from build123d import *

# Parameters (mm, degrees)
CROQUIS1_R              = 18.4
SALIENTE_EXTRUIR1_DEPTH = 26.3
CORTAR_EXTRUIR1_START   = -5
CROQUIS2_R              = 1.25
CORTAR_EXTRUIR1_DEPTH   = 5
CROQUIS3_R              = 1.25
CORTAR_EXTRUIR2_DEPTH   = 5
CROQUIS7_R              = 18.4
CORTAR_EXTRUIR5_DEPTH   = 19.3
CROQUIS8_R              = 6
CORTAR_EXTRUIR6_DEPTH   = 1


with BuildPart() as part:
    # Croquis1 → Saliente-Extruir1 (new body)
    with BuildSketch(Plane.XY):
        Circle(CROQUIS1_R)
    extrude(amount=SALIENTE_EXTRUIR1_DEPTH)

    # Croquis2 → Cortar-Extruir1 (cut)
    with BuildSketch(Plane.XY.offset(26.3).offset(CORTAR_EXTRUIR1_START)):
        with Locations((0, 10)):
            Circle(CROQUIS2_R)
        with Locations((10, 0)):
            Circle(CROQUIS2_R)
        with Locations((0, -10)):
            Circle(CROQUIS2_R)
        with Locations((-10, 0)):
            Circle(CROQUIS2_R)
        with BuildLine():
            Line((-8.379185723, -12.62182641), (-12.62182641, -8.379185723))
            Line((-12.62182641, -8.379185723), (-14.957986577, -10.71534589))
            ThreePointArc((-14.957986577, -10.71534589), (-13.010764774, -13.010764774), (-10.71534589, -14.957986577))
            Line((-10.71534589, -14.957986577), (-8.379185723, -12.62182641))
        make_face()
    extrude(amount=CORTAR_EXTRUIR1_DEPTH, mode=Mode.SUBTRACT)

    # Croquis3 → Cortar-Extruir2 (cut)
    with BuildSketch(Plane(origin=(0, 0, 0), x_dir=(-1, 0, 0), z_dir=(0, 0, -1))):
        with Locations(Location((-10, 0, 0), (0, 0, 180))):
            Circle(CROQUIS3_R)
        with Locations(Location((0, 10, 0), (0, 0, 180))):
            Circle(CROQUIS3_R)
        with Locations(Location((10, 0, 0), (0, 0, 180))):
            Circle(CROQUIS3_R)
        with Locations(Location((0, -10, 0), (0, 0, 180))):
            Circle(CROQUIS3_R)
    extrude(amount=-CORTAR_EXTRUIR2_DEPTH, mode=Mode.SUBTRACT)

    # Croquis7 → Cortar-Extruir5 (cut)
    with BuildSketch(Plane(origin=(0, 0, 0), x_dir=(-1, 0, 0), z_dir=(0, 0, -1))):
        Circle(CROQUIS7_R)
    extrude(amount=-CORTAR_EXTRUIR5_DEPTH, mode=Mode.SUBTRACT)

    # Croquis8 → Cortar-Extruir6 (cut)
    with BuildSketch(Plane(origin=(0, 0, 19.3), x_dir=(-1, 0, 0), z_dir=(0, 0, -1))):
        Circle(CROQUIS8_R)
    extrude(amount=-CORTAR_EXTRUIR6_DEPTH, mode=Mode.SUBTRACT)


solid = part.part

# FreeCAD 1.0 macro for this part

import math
import FreeCAD as App
import Part
import Sketcher
Q = App.Units.Quantity

doc = App.newDocument("Part")
body = doc.addObject("PartDesign::Body", "Body")

# Sketch on XY plane
sketch1 = body.newObject("Sketcher::SketchObject", "Sketch")
sketch1.AttachmentSupport = (doc.getObject("XY_Plane"), [""])
sketch1.MapMode = "FlatFace"
sketch1.addGeometry(Part.Circle(App.Vector(0, 0, 0), App.Vector(0, 0, 1), 18), False)
sketch1.addConstraint([
    Sketcher.Constraint("Coincident", 0, 3, -1, 1),
    Sketcher.Constraint("Diameter", 0, 36.8),
])
pad1 = body.newObject("PartDesign::Pad", "Pad")
pad1.Profile = sketch1
pad1.Length = 26.3

# Sketch on XY plane
sketch2 = body.newObject("Sketcher::SketchObject", "Sketch001")
sketch2.AttachmentSupport = (doc.getObject("XY_Plane"), [""])
sketch2.MapMode = "FlatFace"
sketch2.AttachmentOffset = App.Placement(App.Vector(0, 0, 21.3), App.Rotation())
sketch2.addGeometry([
    Part.Circle(App.Vector(0, 10, 0), App.Vector(0, 0, 1), 1.2),  # 0
    Part.Circle(App.Vector(10, 0, 0), App.Vector(0, 0, 1), 1.2),  # 1
    Part.Circle(App.Vector(0, -10, 0), App.Vector(0, 0, 1), 1.2),  # 2
    Part.Circle(App.Vector(-10, 0, 0), App.Vector(0, 0, 1), 1.2),  # 3
    Part.LineSegment(App.Vector(-8.4, -12.6, 0), App.Vector(-12.6, -8.4, 0)),  # 4
    Part.LineSegment(App.Vector(-12.6, -8.4, 0), App.Vector(-15, -10.7, 0)),  # 5
    Part.ArcOfCircle(Part.Circle(App.Vector(0, 0, 0), App.Vector(0, 0, 1), 18.4), math.radians(-144.38), math.radians(-125.62)),  # 6
    Part.LineSegment(App.Vector(-10.7, -15, 0), App.Vector(-8.4, -12.6, 0)),  # 7
], False)
sketch2.addConstraint([
    Sketcher.Constraint("Coincident", 4, 2, 5, 1),
    Sketcher.Constraint("Coincident", 5, 2, 6, 1),
    Sketcher.Constraint("Coincident", 6, 2, 7, 1),
    Sketcher.Constraint("Coincident", 7, 2, 4, 1),
    Sketcher.Constraint("Coincident", 6, 3, -1, 1),
    Sketcher.Constraint("Equal", 0, 1),
    Sketcher.Constraint("Equal", 1, 2),
    Sketcher.Constraint("Equal", 2, 3),
    Sketcher.Constraint("Symmetric", 0, 3, 2, 3, -1, 1),
    Sketcher.Constraint("Symmetric", 1, 3, 3, 3, -1, 1),
    Sketcher.Constraint("PointOnObject", 0, 3, -2),
    Sketcher.Constraint("PointOnObject", 1, 3, -1),
    Sketcher.Constraint("Perpendicular", 4, 5),
    Sketcher.Constraint("Parallel", 5, 7),
    Sketcher.Constraint("Equal", 5, 7),
    Sketcher.Constraint("Diameter", 0, 2.5),
    Sketcher.Constraint("Radius", 6, 18.4),
    Sketcher.Constraint("Angle", 4, Q("135 deg")),
    Sketcher.Constraint("Distance", 4, 6.0),
    Sketcher.Constraint("DistanceY", -1, 1, 0, 3, 10.0),
    Sketcher.Constraint("DistanceX", -1, 1, 1, 3, 10.0),
    Sketcher.Constraint("DistanceY", 6, 2, 4, 2, 6.578801),
])
pocket1 = body.newObject("PartDesign::Pocket", "Pocket")
pocket1.Profile = sketch2
pocket1.Length = 5
pocket1.Reversed = True

# Sketch on XY plane
sketch3 = body.newObject("Sketcher::SketchObject", "Sketch002")
sketch3.AttachmentSupport = (doc.getObject("XY_Plane"), [""])
sketch3.MapMode = "FlatFace"
sketch3.addGeometry([
    Part.Circle(App.Vector(10, 0, 0), App.Vector(0, 0, 1), 1.2),
    Part.Circle(App.Vector(0, 10, 0), App.Vector(0, 0, 1), 1.2),
    Part.Circle(App.Vector(-10, 0, 0), App.Vector(0, 0, 1), 1.2),
    Part.Circle(App.Vector(0, -10, 0), App.Vector(0, 0, 1), 1.2),
], False)
sketch3.addConstraint([
    Sketcher.Constraint("Equal", 0, 1),
    Sketcher.Constraint("Equal", 1, 2),
    Sketcher.Constraint("Equal", 2, 3),
    Sketcher.Constraint("Symmetric", 0, 3, 2, 3, -1, 1),
    Sketcher.Constraint("Symmetric", 1, 3, 3, 3, -1, 1),
    Sketcher.Constraint("PointOnObject", 0, 3, -1),
    Sketcher.Constraint("PointOnObject", 1, 3, -2),
    Sketcher.Constraint("Diameter", 0, 2.5),
    Sketcher.Constraint("DistanceX", -1, 1, 0, 3, 10.0),
    Sketcher.Constraint("DistanceY", -1, 1, 1, 3, 10.0),
])
pocket2 = body.newObject("PartDesign::Pocket", "Pocket001")
pocket2.Profile = sketch3
pocket2.Length = 5
pocket2.Reversed = True

# Sketch on XY plane
sketch4 = body.newObject("Sketcher::SketchObject", "Sketch003")
sketch4.AttachmentSupport = (doc.getObject("XY_Plane"), [""])
sketch4.MapMode = "FlatFace"
sketch4.addGeometry(Part.Circle(App.Vector(0, 0, 0), App.Vector(0, 0, 1), 18), False)
sketch4.addConstraint([
    Sketcher.Constraint("Coincident", 0, 3, -1, 1),
    Sketcher.Constraint("Diameter", 0, 36.8),
])
pocket3 = body.newObject("PartDesign::Pocket", "Pocket002")
pocket3.Profile = sketch4
pocket3.Length = 19.3
pocket3.Reversed = True

# Sketch on XY plane
sketch5 = body.newObject("Sketcher::SketchObject", "Sketch004")
sketch5.AttachmentSupport = (doc.getObject("XY_Plane"), [""])
sketch5.MapMode = "FlatFace"
sketch5.AttachmentOffset = App.Placement(App.Vector(0, 0, 19.3), App.Rotation())
sketch5.addGeometry(Part.Circle(App.Vector(0, 0, 0), App.Vector(0, 0, 1), 6), False)
sketch5.addConstraint([
    Sketcher.Constraint("Coincident", 0, 3, -1, 1),
    Sketcher.Constraint("Diameter", 0, 12.0),
])
pocket4 = body.newObject("PartDesign::Pocket", "Pocket003")
pocket4.Profile = sketch5
pocket4.Length = 1
pocket4.Reversed = True

doc.recompute()
